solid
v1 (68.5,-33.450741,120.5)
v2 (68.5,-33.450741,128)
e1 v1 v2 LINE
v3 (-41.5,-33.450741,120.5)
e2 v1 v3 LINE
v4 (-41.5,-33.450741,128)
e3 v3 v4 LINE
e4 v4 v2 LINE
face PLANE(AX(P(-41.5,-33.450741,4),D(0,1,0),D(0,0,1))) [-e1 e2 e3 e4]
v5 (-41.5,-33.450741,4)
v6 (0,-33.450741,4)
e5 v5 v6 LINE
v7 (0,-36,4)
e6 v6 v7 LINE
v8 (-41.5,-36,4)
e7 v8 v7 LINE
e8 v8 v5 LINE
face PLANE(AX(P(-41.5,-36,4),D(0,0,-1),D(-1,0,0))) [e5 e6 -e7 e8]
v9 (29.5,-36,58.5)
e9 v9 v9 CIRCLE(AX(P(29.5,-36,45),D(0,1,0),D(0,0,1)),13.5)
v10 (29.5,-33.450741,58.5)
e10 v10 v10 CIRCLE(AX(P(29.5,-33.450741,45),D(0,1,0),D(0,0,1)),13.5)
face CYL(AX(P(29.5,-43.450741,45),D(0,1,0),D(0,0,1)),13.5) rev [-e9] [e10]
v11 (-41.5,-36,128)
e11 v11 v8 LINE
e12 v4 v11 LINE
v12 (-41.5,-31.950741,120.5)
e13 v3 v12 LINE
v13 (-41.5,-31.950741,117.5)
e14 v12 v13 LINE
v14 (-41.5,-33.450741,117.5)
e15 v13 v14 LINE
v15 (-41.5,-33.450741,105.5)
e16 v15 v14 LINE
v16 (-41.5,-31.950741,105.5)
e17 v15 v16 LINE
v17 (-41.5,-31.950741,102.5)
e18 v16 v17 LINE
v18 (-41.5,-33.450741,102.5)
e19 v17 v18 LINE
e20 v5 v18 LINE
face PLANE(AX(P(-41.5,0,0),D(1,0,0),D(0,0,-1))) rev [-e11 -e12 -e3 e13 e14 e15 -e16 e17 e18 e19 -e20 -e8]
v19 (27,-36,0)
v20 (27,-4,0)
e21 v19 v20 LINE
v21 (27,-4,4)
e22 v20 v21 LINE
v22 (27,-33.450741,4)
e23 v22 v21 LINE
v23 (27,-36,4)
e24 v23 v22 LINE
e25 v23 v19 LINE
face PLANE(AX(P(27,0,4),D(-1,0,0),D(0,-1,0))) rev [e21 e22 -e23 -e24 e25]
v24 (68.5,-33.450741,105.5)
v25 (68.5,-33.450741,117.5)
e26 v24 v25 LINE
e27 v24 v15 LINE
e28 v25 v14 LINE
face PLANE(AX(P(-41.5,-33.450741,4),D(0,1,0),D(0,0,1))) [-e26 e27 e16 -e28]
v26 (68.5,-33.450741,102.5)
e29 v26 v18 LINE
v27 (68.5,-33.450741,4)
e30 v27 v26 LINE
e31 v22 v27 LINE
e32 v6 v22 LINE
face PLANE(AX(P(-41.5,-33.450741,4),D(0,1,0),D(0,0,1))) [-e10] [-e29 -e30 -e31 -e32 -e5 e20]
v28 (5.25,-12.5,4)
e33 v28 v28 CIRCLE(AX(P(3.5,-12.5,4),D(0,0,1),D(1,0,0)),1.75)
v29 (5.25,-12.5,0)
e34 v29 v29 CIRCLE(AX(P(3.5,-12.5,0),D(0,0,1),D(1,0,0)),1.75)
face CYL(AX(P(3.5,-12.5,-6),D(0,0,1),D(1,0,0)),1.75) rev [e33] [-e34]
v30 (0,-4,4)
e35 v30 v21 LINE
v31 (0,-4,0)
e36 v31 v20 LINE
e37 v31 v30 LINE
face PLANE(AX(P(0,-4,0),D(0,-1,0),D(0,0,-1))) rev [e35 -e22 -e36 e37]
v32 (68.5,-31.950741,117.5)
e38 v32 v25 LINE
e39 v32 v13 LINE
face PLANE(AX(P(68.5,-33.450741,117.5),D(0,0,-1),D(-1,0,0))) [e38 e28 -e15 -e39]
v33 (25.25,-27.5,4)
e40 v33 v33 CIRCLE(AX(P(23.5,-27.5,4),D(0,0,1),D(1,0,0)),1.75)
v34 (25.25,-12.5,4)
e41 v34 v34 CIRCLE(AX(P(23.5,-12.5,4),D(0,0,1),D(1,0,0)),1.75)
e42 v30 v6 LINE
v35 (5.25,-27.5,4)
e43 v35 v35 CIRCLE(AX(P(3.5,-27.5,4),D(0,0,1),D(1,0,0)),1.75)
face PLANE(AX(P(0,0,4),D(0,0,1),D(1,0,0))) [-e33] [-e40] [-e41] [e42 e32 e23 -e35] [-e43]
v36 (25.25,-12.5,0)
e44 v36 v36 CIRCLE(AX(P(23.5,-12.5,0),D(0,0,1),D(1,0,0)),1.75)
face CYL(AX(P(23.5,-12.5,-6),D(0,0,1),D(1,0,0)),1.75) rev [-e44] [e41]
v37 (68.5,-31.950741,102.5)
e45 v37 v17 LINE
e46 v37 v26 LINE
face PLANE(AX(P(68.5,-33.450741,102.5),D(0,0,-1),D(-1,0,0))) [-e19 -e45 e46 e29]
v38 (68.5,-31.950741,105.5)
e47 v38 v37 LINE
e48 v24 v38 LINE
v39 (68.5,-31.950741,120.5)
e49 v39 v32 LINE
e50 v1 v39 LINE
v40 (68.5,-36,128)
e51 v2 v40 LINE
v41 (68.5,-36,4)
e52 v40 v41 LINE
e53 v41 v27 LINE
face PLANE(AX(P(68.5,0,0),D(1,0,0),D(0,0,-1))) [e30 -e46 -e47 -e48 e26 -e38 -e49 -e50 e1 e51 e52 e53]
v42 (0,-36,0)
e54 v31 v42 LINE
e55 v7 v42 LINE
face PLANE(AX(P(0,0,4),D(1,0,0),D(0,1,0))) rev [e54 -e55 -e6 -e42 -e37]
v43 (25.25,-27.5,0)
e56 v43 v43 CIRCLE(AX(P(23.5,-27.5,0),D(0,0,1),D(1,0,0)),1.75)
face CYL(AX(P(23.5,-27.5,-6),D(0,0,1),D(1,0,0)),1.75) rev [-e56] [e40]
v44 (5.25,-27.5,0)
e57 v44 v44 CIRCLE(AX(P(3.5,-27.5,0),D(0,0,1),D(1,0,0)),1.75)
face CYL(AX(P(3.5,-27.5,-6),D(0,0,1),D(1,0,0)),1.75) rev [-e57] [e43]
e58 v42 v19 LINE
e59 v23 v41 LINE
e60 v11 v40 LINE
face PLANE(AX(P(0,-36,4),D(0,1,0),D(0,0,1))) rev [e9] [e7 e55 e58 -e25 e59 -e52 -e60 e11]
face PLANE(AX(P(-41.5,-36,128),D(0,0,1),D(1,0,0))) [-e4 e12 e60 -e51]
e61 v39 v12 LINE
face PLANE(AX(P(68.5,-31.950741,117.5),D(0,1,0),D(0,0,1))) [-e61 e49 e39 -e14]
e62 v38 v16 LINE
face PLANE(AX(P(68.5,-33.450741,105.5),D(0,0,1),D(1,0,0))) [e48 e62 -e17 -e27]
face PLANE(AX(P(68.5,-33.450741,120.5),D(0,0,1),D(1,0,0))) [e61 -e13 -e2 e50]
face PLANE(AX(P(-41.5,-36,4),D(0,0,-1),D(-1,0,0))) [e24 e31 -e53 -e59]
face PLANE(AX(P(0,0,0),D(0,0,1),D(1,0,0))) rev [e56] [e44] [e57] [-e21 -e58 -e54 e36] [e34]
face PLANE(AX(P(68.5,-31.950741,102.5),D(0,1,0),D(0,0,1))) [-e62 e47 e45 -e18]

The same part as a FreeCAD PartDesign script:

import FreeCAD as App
import Part
import Sketcher
Q = App.Units.Quantity

doc = App.newDocument("Part")
body = doc.addObject("PartDesign::Body", "Body")

# Sketch on XY plane
sketch1 = body.newObject("Sketcher::SketchObject", "Sketch")
sketch1.AttachmentSupport = (doc.getObject("XY_Plane"), [""])
sketch1.MapMode = "FlatFace"
sketch1.addGeometry(Part.LineSegment(App.Vector(0, 0, 0), App.Vector(0, -36, 0)), False)
sketch1.addGeometry(Part.LineSegment(App.Vector(0, -36, 0), App.Vector(27, -36, 0)), False)
sketch1.addGeometry(Part.LineSegment(App.Vector(27, -36, 0), App.Vector(27, 0, 0)), False)
sketch1.addGeometry(Part.LineSegment(App.Vector(27, 0, 0), App.Vector(0, 0, 0)), False)
sketch1.addConstraint(Sketcher.Constraint("Coincident", 0, 2, 1, 1))
sketch1.addConstraint(Sketcher.Constraint("Coincident", 1, 2, 2, 1))
sketch1.addConstraint(Sketcher.Constraint("Coincident", 2, 2, 3, 1))
sketch1.addConstraint(Sketcher.Constraint("Coincident", 3, 2, 0, 1))
sketch1.addConstraint(Sketcher.Constraint("Vertical", 0))
sketch1.addConstraint(Sketcher.Constraint("Horizontal", 1))
sketch1.addConstraint(Sketcher.Constraint("Vertical", 2))
sketch1.addConstraint(Sketcher.Constraint("Horizontal", 3))
sketch1.addConstraint(Sketcher.Constraint("Coincident", 3, 2, -1, 1))
sketch1.addConstraint(Sketcher.Constraint("DistanceX", 1, 1, 1, 2, Q("27 mm")))
sketch1.addConstraint(Sketcher.Constraint("DistanceY", 0, 2, 0, 1, Q("36 mm")))
pad1 = body.newObject("PartDesign::Pad", "Pad")
pad1.Profile = sketch1
pad1.Length = 4

# Sketch on XY plane
sketch2 = body.newObject("Sketcher::SketchObject", "Sketch001")
sketch2.AttachmentSupport = (doc.getObject("XY_Plane"), [""])
sketch2.MapMode = "FlatFace"
sketch2.AttachmentOffset = App.Placement(App.Vector(0, 0, 4), App.Rotation())
sketch2.addGeometry(Part.Circle(App.Vector(3.5, -12.5, 0), App.Vector(0, 0, 1), 1.8), False)
sketch2.addGeometry(Part.Circle(App.Vector(23.5, -12.5, 0), App.Vector(0, 0, 1), 1.8), False)
sketch2.addGeometry(Part.Circle(App.Vector(23.5, -27.5, 0), App.Vector(0, 0, 1), 1.8), False)
sketch2.addGeometry(Part.Circle(App.Vector(3.5, -27.5, 0), App.Vector(0, 0, 1), 1.8), False)
sketch2.addConstraint(Sketcher.Constraint("Equal", 0, 1))
sketch2.addConstraint(Sketcher.Constraint("Equal", 1, 2))
sketch2.addConstraint(Sketcher.Constraint("Equal", 2, 3))
sketch2.addConstraint(Sketcher.Constraint("Horizontal", 0, 3, 1, 3))
sketch2.addConstraint(Sketcher.Constraint("Horizontal", 2, 3, 3, 3))
sketch2.addConstraint(Sketcher.Constraint("Vertical", 1, 3, 2, 3))
sketch2.addConstraint(Sketcher.Constraint("Vertical", 0, 3, 3, 3))
sketch2.addConstraint(Sketcher.Constraint("Diameter", 0, Q("3.5 mm")))
sketch2.addConstraint(Sketcher.Constraint("DistanceX", 0, 3, 1, 3, Q("20 mm")))
sketch2.addConstraint(Sketcher.Constraint("DistanceY", 2, 3, 1, 3, Q("15 mm")))
sketch2.addConstraint(Sketcher.Constraint("DistanceX", -1, 1, 0, 3, Q("3.5 mm")))
sketch2.addConstraint(Sketcher.Constraint("DistanceY", 0, 3, -1, 1, Q("12.5 mm")))
pocket1 = body.newObject("PartDesign::Pocket", "Pocket")
pocket1.Profile = sketch2
pocket1.Length = 10

# Sketch on YZ plane
sketch3 = body.newObject("Sketcher::SketchObject", "Sketch002")
sketch3.AttachmentSupport = (doc.getObject("YZ_Plane"), [""])
sketch3.MapMode = "FlatFace"
sketch3.AttachmentOffset = App.Placement(App.Vector(0, 0, 13.5), App.Rotation())
sketch3.addGeometry(Part.LineSegment(App.Vector(-33.5, 128, 0), App.Vector(-36, 128, 0)), False)
sketch3.addGeometry(Part.LineSegment(App.Vector(-36, 128, 0), App.Vector(-36, 4, 0)), False)
sketch3.addGeometry(Part.LineSegment(App.Vector(-36, 4, 0), App.Vector(-33.5, 4, 0)), False)
sketch3.addGeometry(Part.LineSegment(App.Vector(-33.5, 4, 0), App.Vector(-33.5, 128, 0)), False)
sketch3.addConstraint(Sketcher.Constraint("Coincident", 0, 2, 1, 1))
sketch3.addConstraint(Sketcher.Constraint("Coincident", 1, 2, 2, 1))
sketch3.addConstraint(Sketcher.Constraint("Coincident", 2, 2, 3, 1))
sketch3.addConstraint(Sketcher.Constraint("Coincident", 3, 2, 0, 1))
sketch3.addConstraint(Sketcher.Constraint("Horizontal", 0))
sketch3.addConstraint(Sketcher.Constraint("Vertical", 1))
sketch3.addConstraint(Sketcher.Constraint("Horizontal", 2))
sketch3.addConstraint(Sketcher.Constraint("Vertical", 3))
sketch3.addConstraint(Sketcher.Constraint("DistanceY", 1, 2, 1, 1, Q("124 mm")))
sketch3.addConstraint(Sketcher.Constraint("DistanceX", 0, 2, -1, 1, Q("36 mm")))
sketch3.addConstraint(Sketcher.Constraint("DistanceY", -1, 1, 0, 2, Q("128 mm")))
sketch3.addConstraint(Sketcher.Constraint("DistanceX", 0, 2, 0, 1, Q("2.549259 mm")))
pad2 = body.newObject("PartDesign::Pad", "Pad001")
pad2.Profile = sketch3
pad2.Type = "TwoLengths"
pad2.Length = 55
pad2.Length2 = 55

# Sketch on YZ plane
sketch4 = body.newObject("Sketcher::SketchObject", "Sketch003")
sketch4.AttachmentSupport = (doc.getObject("YZ_Plane"), [""])
sketch4.MapMode = "FlatFace"
sketch4.AttachmentOffset = App.Placement(App.Vector(0, 0, -41.5), App.Rotation())
sketch4.addGeometry(Part.LineSegment(App.Vector(-32, 102.5, 0), App.Vector(-33.5, 102.5, 0)), False)
sketch4.addGeometry(Part.LineSegment(App.Vector(-33.5, 102.5, 0), App.Vector(-33.5, 105.5, 0)), False)
sketch4.addGeometry(Part.LineSegment(App.Vector(-33.5, 105.5, 0), App.Vector(-32, 105.5, 0)), False)
sketch4.addGeometry(Part.LineSegment(App.Vector(-32, 105.5, 0), App.Vector(-32, 102.5, 0)), False)
sketch4.addGeometry(Part.LineSegment(App.Vector(-32, 117.5, 0), App.Vector(-33.5, 117.5, 0)), False)
sketch4.addGeometry(Part.LineSegment(App.Vector(-33.5, 117.5, 0), App.Vector(-33.5, 120.5, 0)), False)
sketch4.addGeometry(Part.LineSegment(App.Vector(-33.5, 120.5, 0), App.Vector(-32, 120.5, 0)), False)
sketch4.addGeometry(Part.LineSegment(App.Vector(-32, 120.5, 0), App.Vector(-32, 117.5, 0)), False)
sketch4.addConstraint(Sketcher.Constraint("Coincident", 0, 2, 1, 1))
sketch4.addConstraint(Sketcher.Constraint("Coincident", 1, 2, 2, 1))
sketch4.addConstraint(Sketcher.Constraint("Coincident", 2, 2, 3, 1))
sketch4.addConstraint(Sketcher.Constraint("Coincident", 3, 2, 0, 1))
sketch4.addConstraint(Sketcher.Constraint("Coincident", 4, 2, 5, 1))
sketch4.addConstraint(Sketcher.Constraint("Coincident", 5, 2, 6, 1))
sketch4.addConstraint(Sketcher.Constraint("Coincident", 6, 2, 7, 1))
sketch4.addConstraint(Sketcher.Constraint("Coincident", 7, 2, 4, 1))
sketch4.addConstraint(Sketcher.Constraint("Horizontal", 0))
sketch4.addConstraint(Sketcher.Constraint("Vertical", 1))
sketch4.addConstraint(Sketcher.Constraint("Horizontal", 2))
sketch4.addConstraint(Sketcher.Constraint("Vertical", 3))
sketch4.addConstraint(Sketcher.Constraint("Horizontal", 4))
sketch4.addConstraint(Sketcher.Constraint("Vertical", 5))
sketch4.addConstraint(Sketcher.Constraint("Horizontal", 6))
sketch4.addConstraint(Sketcher.Constraint("Vertical", 7))
sketch4.addConstraint(Sketcher.Constraint("Vertical", 1, 2, 4, 2))
sketch4.addConstraint(Sketcher.Constraint("Vertical", 3, 2, 6, 2))
sketch4.addConstraint(Sketcher.Constraint("Equal", 3, 5))
sketch4.addConstraint(Sketcher.Constraint("DistanceY", 1, 1, 1, 2, Q("3 mm")))
sketch4.addConstraint(Sketcher.Constraint("DistanceX", 0, 2, 0, 1, Q("1.5 mm")))
sketch4.addConstraint(Sketcher.Constraint("DistanceY", 1, 2, 4, 2, Q("12 mm")))
sketch4.addConstraint(Sketcher.Constraint("DistanceY", -1, 1, 0, 2, Q("102.5 mm")))
sketch4.addConstraint(Sketcher.Constraint("DistanceX", 0, 2, -1, 1, Q("33.450741 mm")))
pad3 = body.newObject("PartDesign::Pad", "Pad002")
pad3.Profile = sketch4
pad3.Length = 110

# Sketch on XY plane
sketch5 = body.newObject("Sketcher::SketchObject", "Sketch004")
sketch5.AttachmentSupport = (doc.getObject("XY_Plane"), [""])
sketch5.MapMode = "FlatFace"
sketch5.AttachmentOffset = App.Placement(App.Vector(0, 0, 4), App.Rotation())
sketch5.addGeometry(Part.LineSegment(App.Vector(0, 0, 0), App.Vector(0, -4, 0)), False)
sketch5.addGeometry(Part.LineSegment(App.Vector(0, -4, 0), App.Vector(27, -4, 0)), False)
sketch5.addGeometry(Part.LineSegment(App.Vector(27, -4, 0), App.Vector(27, 0, 0)), False)
sketch5.addGeometry(Part.LineSegment(App.Vector(27, 0, 0), App.Vector(0, 0, 0)), False)
sketch5.addConstraint(Sketcher.Constraint("Coincident", 0, 2, 1, 1))
sketch5.addConstraint(Sketcher.Constraint("Coincident", 1, 2, 2, 1))
sketch5.addConstraint(Sketcher.Constraint("Coincident", 2, 2, 3, 1))
sketch5.addConstraint(Sketcher.Constraint("Coincident", 3, 2, 0, 1))
sketch5.addConstraint(Sketcher.Constraint("Vertical", 0))
sketch5.addConstraint(Sketcher.Constraint("Horizontal", 1))
sketch5.addConstraint(Sketcher.Constraint("Vertical", 2))
sketch5.addConstraint(Sketcher.Constraint("Horizontal", 3))
sketch5.addConstraint(Sketcher.Constraint("Coincident", 3, 2, -1, 1))
sketch5.addConstraint(Sketcher.Constraint("DistanceX", 1, 1, 1, 2, Q("27 mm")))
sketch5.addConstraint(Sketcher.Constraint("DistanceY", 0, 2, 0, 1, Q("4 mm")))
pocket2 = body.newObject("PartDesign::Pocket", "Pocket001")
pocket2.Profile = sketch5
pocket2.Type = "ThroughAll"

# Sketch on XZ plane
sketch6 = body.newObject("Sketcher::SketchObject", "Sketch005")
sketch6.AttachmentSupport = (doc.getObject("XZ_Plane"), [""])
sketch6.MapMode = "FlatFace"
sketch6.AttachmentOffset = App.Placement(App.Vector(0, 0, 33.450741), App.Rotation())
sketch6.addGeometry(Part.Circle(App.Vector(30, 45, 0), App.Vector(0, 0, 1), 14), False)
sketch6.addConstraint(Sketcher.Constraint("Diameter", 0, Q("27 mm")))
sketch6.addConstraint(Sketcher.Constraint("DistanceY", -1, 1, 0, 3, Q("45 mm")))
sketch6.addConstraint(Sketcher.Constraint("DistanceX", -1, 1, 0, 3, Q("29.5 mm")))
pocket3 = body.newObject("PartDesign::Pocket", "Pocket002")
pocket3.Profile = sketch6
pocket3.Length = 10
pocket3.Reversed = True

doc.recompute()
